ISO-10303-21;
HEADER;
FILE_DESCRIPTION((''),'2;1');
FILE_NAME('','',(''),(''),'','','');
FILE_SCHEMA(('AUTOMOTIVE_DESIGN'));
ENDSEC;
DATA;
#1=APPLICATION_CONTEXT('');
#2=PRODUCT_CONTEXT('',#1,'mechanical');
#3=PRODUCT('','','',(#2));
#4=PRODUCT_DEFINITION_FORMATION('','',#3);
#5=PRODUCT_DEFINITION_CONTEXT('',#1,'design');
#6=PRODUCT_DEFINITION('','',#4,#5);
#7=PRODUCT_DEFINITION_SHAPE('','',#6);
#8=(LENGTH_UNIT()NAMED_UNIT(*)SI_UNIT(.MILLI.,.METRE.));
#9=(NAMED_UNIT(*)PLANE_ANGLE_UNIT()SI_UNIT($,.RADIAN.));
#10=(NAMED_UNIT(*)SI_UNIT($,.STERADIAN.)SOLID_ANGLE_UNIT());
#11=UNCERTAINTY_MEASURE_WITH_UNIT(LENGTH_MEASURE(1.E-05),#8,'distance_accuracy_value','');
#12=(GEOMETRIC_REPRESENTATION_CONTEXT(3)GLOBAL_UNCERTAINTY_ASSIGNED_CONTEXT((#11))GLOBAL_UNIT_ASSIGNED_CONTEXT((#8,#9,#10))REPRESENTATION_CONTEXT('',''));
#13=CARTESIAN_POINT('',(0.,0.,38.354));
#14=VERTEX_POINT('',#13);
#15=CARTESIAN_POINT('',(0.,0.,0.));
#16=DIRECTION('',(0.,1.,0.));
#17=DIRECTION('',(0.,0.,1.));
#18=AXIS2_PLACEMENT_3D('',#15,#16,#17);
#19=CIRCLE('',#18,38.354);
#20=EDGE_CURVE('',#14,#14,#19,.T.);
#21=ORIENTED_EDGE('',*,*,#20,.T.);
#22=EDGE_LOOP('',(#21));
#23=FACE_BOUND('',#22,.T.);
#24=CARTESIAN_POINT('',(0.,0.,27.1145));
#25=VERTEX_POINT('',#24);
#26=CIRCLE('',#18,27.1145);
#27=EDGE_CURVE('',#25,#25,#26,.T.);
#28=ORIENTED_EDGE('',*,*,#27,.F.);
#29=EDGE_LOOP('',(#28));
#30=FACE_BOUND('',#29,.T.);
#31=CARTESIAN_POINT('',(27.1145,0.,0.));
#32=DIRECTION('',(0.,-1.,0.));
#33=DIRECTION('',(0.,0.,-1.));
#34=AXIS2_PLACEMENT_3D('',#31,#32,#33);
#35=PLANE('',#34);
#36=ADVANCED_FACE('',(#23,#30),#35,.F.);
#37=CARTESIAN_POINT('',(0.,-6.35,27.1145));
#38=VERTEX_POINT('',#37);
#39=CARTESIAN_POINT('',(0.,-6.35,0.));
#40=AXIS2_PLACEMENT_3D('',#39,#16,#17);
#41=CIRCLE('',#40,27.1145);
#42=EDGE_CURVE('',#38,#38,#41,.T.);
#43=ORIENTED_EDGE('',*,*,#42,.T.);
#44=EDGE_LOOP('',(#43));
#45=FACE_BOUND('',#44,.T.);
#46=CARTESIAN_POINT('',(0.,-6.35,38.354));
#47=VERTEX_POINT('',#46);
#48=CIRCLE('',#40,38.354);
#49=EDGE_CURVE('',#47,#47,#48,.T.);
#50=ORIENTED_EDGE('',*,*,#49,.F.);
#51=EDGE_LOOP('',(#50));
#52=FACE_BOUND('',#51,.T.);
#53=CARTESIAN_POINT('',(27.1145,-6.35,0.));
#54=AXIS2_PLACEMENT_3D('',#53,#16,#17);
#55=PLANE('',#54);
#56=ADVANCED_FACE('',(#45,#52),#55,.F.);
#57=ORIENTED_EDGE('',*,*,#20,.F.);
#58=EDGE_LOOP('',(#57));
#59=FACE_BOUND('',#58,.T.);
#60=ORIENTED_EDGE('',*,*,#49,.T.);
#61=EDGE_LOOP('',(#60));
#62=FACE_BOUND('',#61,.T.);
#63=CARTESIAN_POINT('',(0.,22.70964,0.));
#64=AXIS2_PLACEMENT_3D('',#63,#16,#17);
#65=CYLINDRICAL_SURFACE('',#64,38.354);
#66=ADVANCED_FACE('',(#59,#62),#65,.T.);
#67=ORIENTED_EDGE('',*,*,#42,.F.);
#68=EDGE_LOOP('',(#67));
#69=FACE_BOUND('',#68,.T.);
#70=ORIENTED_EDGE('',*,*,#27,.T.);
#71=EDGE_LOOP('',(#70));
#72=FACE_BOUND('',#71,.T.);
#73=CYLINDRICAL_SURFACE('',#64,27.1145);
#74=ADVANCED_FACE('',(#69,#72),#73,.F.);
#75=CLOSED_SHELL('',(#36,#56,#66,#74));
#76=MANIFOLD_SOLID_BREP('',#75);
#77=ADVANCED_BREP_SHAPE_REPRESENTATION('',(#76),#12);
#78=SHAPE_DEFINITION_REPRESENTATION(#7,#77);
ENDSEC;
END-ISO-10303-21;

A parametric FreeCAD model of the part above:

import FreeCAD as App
import Part
import Sketcher
Q = App.Units.Quantity


def add_polygon(sketch, points):
    """Adds a closed chain of lines whose ends are joined by coincident constraints."""
    first, n = sketch.GeometryCount, len(points)
    for a, b in zip(points, points[1:] + points[:1]):
        sketch.addGeometry(Part.LineSegment(App.Vector(*a, 0), App.Vector(*b, 0)), False)
    for i in range(n):
        sketch.addConstraint(Sketcher.Constraint("Coincident", first + i, 2, first + (i + 1) % n, 1))

doc = App.newDocument("Part")
params = doc.addObject("Spreadsheet::Sheet", "Params")
for row, (alias, value) in enumerate([
    ("sketch1_height", "0.25 in"),
    ("revolution_angle", "360 deg"),
], start=1):
    params.set(f"A{row}", alias)
    params.set(f"B{row}", "=" + value)
    params.setAlias(f"B{row}", alias)

body = doc.addObject("PartDesign::Body", "Body")

# Sketch on XY plane
sketch1 = body.newObject("Sketcher::SketchObject", "Sketch")
sketch1.AttachmentSupport = (doc.getObject("XY_Plane"), [""])
sketch1.MapMode = "FlatFace"
add_polygon(sketch1, [(27, 0), (27, -6), (38, -6), (38, 0)])  # lines 0-3
sketch1.addConstraint([
    Sketcher.Constraint("Vertical", 0),
    Sketcher.Constraint("Horizontal", 1),
    Sketcher.Constraint("Vertical", 2),
    Sketcher.Constraint("Horizontal", 3),
    Sketcher.Constraint("PointOnObject", 2, 2, -1),
    Sketcher.Constraint("DistanceY", 0, 2, 0, 1, Q("0.25 in")),
    Sketcher.Constraint("DistanceX", -1, 1, 1, 2, Q("1.51 in")),
    Sketcher.Constraint("DistanceX", 1, 1, 1, 2, Q("0.4425 in")),
])
sketch1.setExpression("Constraints[9]", "Params.sketch1_height")
revolution = body.newObject("PartDesign::Revolution", "Revolution")
revolution.Profile = sketch1
revolution.ReferenceAxis = (sketch1, ["V_Axis"])
revolution.setExpression("Angle", "Params.revolution_angle")

doc.recompute()
